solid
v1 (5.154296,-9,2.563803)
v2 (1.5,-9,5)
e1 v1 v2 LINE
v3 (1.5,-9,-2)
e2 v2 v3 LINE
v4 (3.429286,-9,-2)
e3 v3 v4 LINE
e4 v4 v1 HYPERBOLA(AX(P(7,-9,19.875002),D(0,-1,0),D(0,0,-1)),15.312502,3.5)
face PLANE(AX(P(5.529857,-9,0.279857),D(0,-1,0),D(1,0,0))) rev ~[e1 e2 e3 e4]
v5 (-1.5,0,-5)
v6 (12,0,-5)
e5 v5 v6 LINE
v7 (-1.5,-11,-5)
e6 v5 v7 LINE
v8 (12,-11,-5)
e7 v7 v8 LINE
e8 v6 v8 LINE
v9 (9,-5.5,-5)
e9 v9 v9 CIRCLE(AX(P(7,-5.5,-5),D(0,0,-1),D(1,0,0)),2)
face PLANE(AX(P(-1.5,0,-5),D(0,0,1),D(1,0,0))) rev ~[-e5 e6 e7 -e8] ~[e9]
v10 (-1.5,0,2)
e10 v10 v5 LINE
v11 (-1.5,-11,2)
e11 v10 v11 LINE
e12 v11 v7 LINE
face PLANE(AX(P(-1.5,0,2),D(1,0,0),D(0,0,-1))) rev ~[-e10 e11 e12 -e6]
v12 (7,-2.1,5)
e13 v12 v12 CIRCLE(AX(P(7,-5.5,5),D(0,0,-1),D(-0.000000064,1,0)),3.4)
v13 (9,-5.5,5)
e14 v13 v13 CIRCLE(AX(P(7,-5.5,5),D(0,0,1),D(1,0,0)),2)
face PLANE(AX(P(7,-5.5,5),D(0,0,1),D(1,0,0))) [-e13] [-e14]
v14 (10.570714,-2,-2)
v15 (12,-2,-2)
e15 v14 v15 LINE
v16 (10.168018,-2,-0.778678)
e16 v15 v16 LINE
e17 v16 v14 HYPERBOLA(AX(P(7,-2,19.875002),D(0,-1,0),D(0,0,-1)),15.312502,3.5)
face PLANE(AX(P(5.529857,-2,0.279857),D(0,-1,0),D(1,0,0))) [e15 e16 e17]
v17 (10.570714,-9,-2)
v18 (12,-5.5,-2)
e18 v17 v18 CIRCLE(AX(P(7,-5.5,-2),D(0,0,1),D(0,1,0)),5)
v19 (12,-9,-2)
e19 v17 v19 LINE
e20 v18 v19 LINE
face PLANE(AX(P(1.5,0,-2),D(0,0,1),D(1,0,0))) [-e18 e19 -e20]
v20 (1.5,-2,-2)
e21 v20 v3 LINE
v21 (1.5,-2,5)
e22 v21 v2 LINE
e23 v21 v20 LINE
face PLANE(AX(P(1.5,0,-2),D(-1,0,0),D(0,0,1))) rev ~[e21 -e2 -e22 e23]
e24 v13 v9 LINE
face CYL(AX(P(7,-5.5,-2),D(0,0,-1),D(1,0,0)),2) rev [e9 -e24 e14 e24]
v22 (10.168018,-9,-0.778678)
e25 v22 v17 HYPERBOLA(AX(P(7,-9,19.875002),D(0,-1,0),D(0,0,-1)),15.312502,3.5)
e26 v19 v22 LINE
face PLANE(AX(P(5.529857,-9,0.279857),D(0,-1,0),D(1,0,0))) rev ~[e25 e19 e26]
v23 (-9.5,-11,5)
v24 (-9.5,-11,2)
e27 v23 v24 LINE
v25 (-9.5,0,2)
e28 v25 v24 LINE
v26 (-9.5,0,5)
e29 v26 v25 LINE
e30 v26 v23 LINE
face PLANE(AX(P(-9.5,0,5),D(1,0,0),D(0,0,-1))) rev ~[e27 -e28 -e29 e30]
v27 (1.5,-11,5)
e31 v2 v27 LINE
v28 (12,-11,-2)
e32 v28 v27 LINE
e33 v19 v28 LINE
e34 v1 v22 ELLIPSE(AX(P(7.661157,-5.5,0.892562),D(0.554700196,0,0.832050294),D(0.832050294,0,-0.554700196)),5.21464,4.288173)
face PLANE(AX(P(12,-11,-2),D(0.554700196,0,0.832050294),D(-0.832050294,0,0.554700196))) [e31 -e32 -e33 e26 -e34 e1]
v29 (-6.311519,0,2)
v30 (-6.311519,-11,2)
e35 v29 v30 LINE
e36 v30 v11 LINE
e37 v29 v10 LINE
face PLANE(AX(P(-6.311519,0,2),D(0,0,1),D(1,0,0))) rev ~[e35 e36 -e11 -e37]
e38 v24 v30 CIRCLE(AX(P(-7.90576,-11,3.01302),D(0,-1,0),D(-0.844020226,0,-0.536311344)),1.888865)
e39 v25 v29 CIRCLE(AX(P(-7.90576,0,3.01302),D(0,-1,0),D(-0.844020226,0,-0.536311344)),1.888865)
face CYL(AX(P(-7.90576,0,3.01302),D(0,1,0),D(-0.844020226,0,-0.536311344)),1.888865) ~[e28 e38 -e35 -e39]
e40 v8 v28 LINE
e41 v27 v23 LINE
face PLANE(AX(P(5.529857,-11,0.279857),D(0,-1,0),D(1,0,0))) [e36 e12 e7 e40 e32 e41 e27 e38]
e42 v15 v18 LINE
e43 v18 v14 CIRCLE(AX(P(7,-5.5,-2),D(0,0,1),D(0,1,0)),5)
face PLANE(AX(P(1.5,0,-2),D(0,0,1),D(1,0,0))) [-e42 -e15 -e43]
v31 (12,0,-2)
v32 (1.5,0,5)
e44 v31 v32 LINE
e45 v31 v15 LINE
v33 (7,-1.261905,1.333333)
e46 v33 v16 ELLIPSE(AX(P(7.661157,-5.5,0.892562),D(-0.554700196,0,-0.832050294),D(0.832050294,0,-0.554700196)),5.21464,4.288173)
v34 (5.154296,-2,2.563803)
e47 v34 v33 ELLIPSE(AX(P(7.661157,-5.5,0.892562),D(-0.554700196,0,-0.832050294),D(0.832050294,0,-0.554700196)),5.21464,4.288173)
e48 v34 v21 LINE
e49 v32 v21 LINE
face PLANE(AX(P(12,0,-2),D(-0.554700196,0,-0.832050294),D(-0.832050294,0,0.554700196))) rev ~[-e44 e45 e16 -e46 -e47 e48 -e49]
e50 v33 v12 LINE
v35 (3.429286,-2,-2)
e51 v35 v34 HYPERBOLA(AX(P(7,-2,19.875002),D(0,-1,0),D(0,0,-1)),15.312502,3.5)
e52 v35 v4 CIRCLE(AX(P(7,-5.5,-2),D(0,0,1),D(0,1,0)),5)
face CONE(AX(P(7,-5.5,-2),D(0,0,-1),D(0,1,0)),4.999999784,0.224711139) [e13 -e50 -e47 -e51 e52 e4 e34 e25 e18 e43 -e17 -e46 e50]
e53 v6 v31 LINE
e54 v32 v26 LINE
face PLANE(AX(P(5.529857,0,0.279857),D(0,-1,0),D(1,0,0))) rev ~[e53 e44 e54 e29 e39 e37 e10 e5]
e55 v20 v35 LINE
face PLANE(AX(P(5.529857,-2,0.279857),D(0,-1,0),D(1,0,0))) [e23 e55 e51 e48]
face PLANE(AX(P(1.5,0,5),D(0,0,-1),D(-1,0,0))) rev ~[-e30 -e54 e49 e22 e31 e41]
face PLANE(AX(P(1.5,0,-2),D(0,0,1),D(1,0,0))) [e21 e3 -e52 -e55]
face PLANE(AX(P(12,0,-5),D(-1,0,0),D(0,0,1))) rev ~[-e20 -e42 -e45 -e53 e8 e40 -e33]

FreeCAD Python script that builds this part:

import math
import FreeCAD as App
import Part
import Sketcher


def add_polygon(sketch, points):
    """Adds a closed chain of lines whose ends are joined by coincident constraints."""
    first, n = sketch.GeometryCount, len(points)
    for a, b in zip(points, points[1:] + points[:1]):
        sketch.addGeometry(Part.LineSegment(App.Vector(*a, 0), App.Vector(*b, 0)), False)
    for i in range(n):
        sketch.addConstraint(Sketcher.Constraint("Coincident", first + i, 2, first + (i + 1) % n, 1))

doc = App.newDocument("Part")
params = doc.addObject("Spreadsheet::Sheet", "Params")
for row, (alias, value) in enumerate([
    ("sketch1_width", "11 mm"),
    ("sketch1_height", "3 mm"),
    ("sketch1_height2", "7 mm"),
    ("sketch1_width2", "10.5 mm"),
    ("sketch1_width3", "13.5 mm"),
    ("pad1_length", "11 mm"),
    ("sketch2_height", "7 mm"),
    ("sketch2_width", "10.5 mm"),
    ("pad2_length", "2 mm"),
    ("sketch3_height", "7 mm"),
    ("sketch3_width", "10.5 mm"),
    ("pad3_length", "2 mm"),
    ("sketch4_diameter", "4 mm"),
    ("pocket1_length", "25 mm"),
    ("sketch5_diameter", "4 mm"),
    ("sketch5_diameter2", "6.8 mm"),
    ("pad4_length", "7 mm"),
    ("sketch6_height", "7 mm"),
    ("sketch6_width", "1.6 mm"),
    ("revolution_angle", "360 deg"),
], start=1):
    params.set(f"A{row}", alias)
    params.set(f"B{row}", "=" + value)
    params.setAlias(f"B{row}", alias)

body = doc.addObject("PartDesign::Body", "Body")

sketch1 = body.newObject("Sketcher::SketchObject", "Sketch")
sketch1.AttachmentSupport = (doc.getObject("XZ_Plane"), [""])
sketch1.MapMode = "FlatFace"
sketch1.addGeometry([
    Part.LineSegment(App.Vector(12, -5, 0), App.Vector(12, -2, 0)),
    Part.LineSegment(App.Vector(12, -2, 0), App.Vector(1.5, -2, 0)),
    Part.LineSegment(App.Vector(1.5, -2, 0), App.Vector(1.5, 5, 0)),
    Part.LineSegment(App.Vector(1.5, 5, 0), App.Vector(-9.5, 5, 0)),
    Part.LineSegment(App.Vector(-9.5, 5, 0), App.Vector(-9.5, 2, 0)),
    Part.ArcOfCircle(Part.Circle(App.Vector(-7.9, 3, 0), App.Vector(0, 0, 1), 1.9), math.radians(-148), math.radians(-32)),
    Part.LineSegment(App.Vector(-6.3, 2, 0), App.Vector(-1.5, 2, 0)),
    Part.LineSegment(App.Vector(-1.5, 2, 0), App.Vector(-1.5, -5, 0)),
    Part.LineSegment(App.Vector(-1.5, -5, 0), App.Vector(12, -5, 0)),
], False)
sketch1.addConstraint([
    Sketcher.Constraint("Coincident", 0, 2, 1, 1),
    Sketcher.Constraint("Coincident", 1, 2, 2, 1),
    Sketcher.Constraint("Coincident", 2, 2, 3, 1),
    Sketcher.Constraint("Coincident", 3, 2, 4, 1),
    Sketcher.Constraint("Coincident", 4, 2, 5, 1),
    Sketcher.Constraint("Coincident", 5, 2, 6, 1),
    Sketcher.Constraint("Coincident", 6, 2, 7, 1),
    Sketcher.Constraint("Coincident", 7, 2, 8, 1),
    Sketcher.Constraint("Coincident", 8, 2, 0, 1),
    Sketcher.Constraint("Vertical", 0),
    Sketcher.Constraint("Horizontal", 1),
    Sketcher.Constraint("Vertical", 2),
    Sketcher.Constraint("Horizontal", 3),
    Sketcher.Constraint("Vertical", 4),
    Sketcher.Constraint("Horizontal", 6),
    Sketcher.Constraint("Vertical", 7),
    Sketcher.Constraint("Horizontal", 8),
    Sketcher.Constraint("Symmetric", 1, 2, 6, 2, -1, 1),
    Sketcher.Constraint("Horizontal", 4, 2, 5, 2),
    Sketcher.Constraint("Equal", 0, 4),
    Sketcher.Constraint("DistanceX", 3, 2, 3, 1, 11.0),
    Sketcher.Constraint("DistanceY", 0, 1, 0, 2, 3.0),
    Sketcher.Constraint("DistanceY", 2, 1, 2, 2, 7.0),
    Sketcher.Constraint("DistanceX", 1, 2, 1, 1, 10.5),
    Sketcher.Constraint("DistanceX", 8, 1, 8, 2, 13.5),
    Sketcher.Constraint("Radius", 5, 1.888865),
    Sketcher.Constraint("DistanceX", 6, 1, 6, 2, 4.811519),
])
sketch1.setExpression("Constraints[20]", "Params.sketch1_width")
sketch1.setExpression("Constraints[21]", "Params.sketch1_height")
sketch1.setExpression("Constraints[22]", "Params.sketch1_height2")
sketch1.setExpression("Constraints[23]", "Params.sketch1_width2")
sketch1.setExpression("Constraints[24]", "Params.sketch1_width3")
pad1 = body.newObject("PartDesign::Pad", "Pad")
pad1.Profile = sketch1
pad1.setExpression("Length", "Params.pad1_length")

sketch2 = body.newObject("Sketcher::SketchObject", "Sketch001")
sketch2.AttachmentSupport = (doc.getObject("XZ_Plane"), [""])
sketch2.MapMode = "FlatFace"
add_polygon(sketch2, [(12, -2), (2, 5), (2, -2)])
sketch2.addConstraint([
    Sketcher.Constraint("Vertical", 1),
    Sketcher.Constraint("Horizontal", 2),
    Sketcher.Constraint("DistanceY", 1, 2, 1, 1, 7.0),
    Sketcher.Constraint("DistanceX", 2, 1, 2, 2, 10.5),
    Sketcher.Constraint("DistanceY", -1, 1, 0, 2, 5.0),
    Sketcher.Constraint("DistanceX", -1, 1, 2, 2, 12.0),
])
sketch2.setExpression("Constraints[5]", "Params.sketch2_height")
sketch2.setExpression("Constraints[6]", "Params.sketch2_width")
pad2 = body.newObject("PartDesign::Pad", "Pad001")
pad2.Profile = sketch2
pad2.setExpression("Length", "Params.pad2_length")

sketch3 = body.newObject("Sketcher::SketchObject", "Sketch002")
sketch3.AttachmentSupport = (doc.getObject("XZ_Plane"), [""])
sketch3.MapMode = "FlatFace"
sketch3.AttachmentOffset = App.Placement(App.Vector(0, 0, 11), App.Rotation())
add_polygon(sketch3, [(2, -2), (12, -2), (2, 5)])
sketch3.addConstraint([
    Sketcher.Constraint("Horizontal", 0),
    Sketcher.Constraint("Vertical", 2),
    Sketcher.Constraint("DistanceY", 2, 2, 2, 1, 7.0),
    Sketcher.Constraint("DistanceX", 0, 1, 0, 2, 10.5),
    Sketcher.Constraint("DistanceX", -1, 1, 0, 2, 12.0),
    Sketcher.Constraint("DistanceY", 0, 2, -1, 1, 2.0),
])
sketch3.setExpression("Constraints[5]", "Params.sketch3_height")
sketch3.setExpression("Constraints[6]", "Params.sketch3_width")
pad3 = body.newObject("PartDesign::Pad", "Pad002")
pad3.Profile = sketch3
pad3.setExpression("Length", "Params.pad3_length")
pad3.Reversed = True

sketch4 = body.newObject("Sketcher::SketchObject", "Sketch003")
sketch4.AttachmentSupport = (doc.getObject("XY_Plane"), [""])
sketch4.MapMode = "FlatFace"
sketch4.AttachmentOffset = App.Placement(App.Vector(0, 0, -5), App.Rotation())
sketch4.addGeometry(Part.Circle(App.Vector(7, -5.5, 0), App.Vector(0, 0, 1), 2), False)
sketch4.addConstraint([
    Sketcher.Constraint("Diameter", 0, 4.0),
    Sketcher.Constraint("DistanceX", -1, 1, 0, 3, 7.0),
    Sketcher.Constraint("DistanceY", 0, 3, -1, 1, 5.5),
])
sketch4.setExpression("Constraints[0]", "Params.sketch4_diameter")
pocket1 = body.newObject("PartDesign::Pocket", "Pocket")
pocket1.Profile = sketch4
pocket1.setExpression("Length", "Params.pocket1_length")
pocket1.Reversed = True

sketch5 = body.newObject("Sketcher::SketchObject", "Sketch004")
sketch5.AttachmentSupport = (doc.getObject("XY_Plane"), [""])
sketch5.MapMode = "FlatFace"
sketch5.AttachmentOffset = App.Placement(App.Vector(0, 0, -2), App.Rotation())
sketch5.addGeometry([
    Part.Circle(App.Vector(7, -5.5, 0), App.Vector(0, 0, 1), 3.4),
    Part.Circle(App.Vector(7, -5.5, 0), App.Vector(0, 0, 1), 2),
], False)
sketch5.addConstraint([
    Sketcher.Constraint("Coincident", 1, 3, 0, 3),
    Sketcher.Constraint("Diameter", 1, 4.0),
    Sketcher.Constraint("Diameter", 0, 6.8),
    Sketcher.Constraint("DistanceX", -1, 1, 0, 3, 7.0),
    Sketcher.Constraint("DistanceY", 0, 3, -1, 1, 5.5),
])
sketch5.setExpression("Constraints[1]", "Params.sketch5_diameter")
sketch5.setExpression("Constraints[2]", "Params.sketch5_diameter2")
pad4 = body.newObject("PartDesign::Pad", "Pad003")
pad4.Profile = sketch5
pad4.setExpression("Length", "Params.pad4_length")

sketch6 = body.newObject("Sketcher::SketchObject", "Sketch005")
sketch6.AttachmentSupport = (doc.getObject("YZ_Plane"), [""])
sketch6.MapMode = "FlatFace"
sketch6.AttachmentOffset = App.Placement(App.Vector(0, 0, 7), App.Rotation())
add_polygon(sketch6, [(-2.1, 5), (-2.1, -2), (-0.5, -2)])
sketch6.addGeometry(Part.LineSegment(App.Vector(-5.5, -2, 0), App.Vector(-5.5, 5, 0)), True)
sketch6.addConstraint([
    Sketcher.Constraint("Vertical", 0),
    Sketcher.Constraint("Horizontal", 1),
    Sketcher.Constraint("Vertical", 3),
    Sketcher.Constraint("Horizontal", 1, 2, 3, 1),
    Sketcher.Constraint("Horizontal", 2, 2, 3, 2),
    Sketcher.Constraint("DistanceY", 0, 2, 0, 1, 7.0),
    Sketcher.Constraint("DistanceX", 1, 1, 1, 2, 1.6),
    Sketcher.Constraint("DistanceY", 0, 2, -1, 1, 2.0),
    Sketcher.Constraint("DistanceX", 3, 1, 1, 2, 5.0),
    Sketcher.Constraint("DistanceX", 0, 2, -1, 1, 2.1),
])
sketch6.setExpression("Constraints[8]", "Params.sketch6_height")
sketch6.setExpression("Constraints[9]", "Params.sketch6_width")
revolution = body.newObject("PartDesign::Revolution", "Revolution")
revolution.Profile = sketch6
revolution.ReferenceAxis = (sketch6, ["Axis0"])
revolution.setExpression("Angle", "Params.revolution_angle")

doc.recompute()
